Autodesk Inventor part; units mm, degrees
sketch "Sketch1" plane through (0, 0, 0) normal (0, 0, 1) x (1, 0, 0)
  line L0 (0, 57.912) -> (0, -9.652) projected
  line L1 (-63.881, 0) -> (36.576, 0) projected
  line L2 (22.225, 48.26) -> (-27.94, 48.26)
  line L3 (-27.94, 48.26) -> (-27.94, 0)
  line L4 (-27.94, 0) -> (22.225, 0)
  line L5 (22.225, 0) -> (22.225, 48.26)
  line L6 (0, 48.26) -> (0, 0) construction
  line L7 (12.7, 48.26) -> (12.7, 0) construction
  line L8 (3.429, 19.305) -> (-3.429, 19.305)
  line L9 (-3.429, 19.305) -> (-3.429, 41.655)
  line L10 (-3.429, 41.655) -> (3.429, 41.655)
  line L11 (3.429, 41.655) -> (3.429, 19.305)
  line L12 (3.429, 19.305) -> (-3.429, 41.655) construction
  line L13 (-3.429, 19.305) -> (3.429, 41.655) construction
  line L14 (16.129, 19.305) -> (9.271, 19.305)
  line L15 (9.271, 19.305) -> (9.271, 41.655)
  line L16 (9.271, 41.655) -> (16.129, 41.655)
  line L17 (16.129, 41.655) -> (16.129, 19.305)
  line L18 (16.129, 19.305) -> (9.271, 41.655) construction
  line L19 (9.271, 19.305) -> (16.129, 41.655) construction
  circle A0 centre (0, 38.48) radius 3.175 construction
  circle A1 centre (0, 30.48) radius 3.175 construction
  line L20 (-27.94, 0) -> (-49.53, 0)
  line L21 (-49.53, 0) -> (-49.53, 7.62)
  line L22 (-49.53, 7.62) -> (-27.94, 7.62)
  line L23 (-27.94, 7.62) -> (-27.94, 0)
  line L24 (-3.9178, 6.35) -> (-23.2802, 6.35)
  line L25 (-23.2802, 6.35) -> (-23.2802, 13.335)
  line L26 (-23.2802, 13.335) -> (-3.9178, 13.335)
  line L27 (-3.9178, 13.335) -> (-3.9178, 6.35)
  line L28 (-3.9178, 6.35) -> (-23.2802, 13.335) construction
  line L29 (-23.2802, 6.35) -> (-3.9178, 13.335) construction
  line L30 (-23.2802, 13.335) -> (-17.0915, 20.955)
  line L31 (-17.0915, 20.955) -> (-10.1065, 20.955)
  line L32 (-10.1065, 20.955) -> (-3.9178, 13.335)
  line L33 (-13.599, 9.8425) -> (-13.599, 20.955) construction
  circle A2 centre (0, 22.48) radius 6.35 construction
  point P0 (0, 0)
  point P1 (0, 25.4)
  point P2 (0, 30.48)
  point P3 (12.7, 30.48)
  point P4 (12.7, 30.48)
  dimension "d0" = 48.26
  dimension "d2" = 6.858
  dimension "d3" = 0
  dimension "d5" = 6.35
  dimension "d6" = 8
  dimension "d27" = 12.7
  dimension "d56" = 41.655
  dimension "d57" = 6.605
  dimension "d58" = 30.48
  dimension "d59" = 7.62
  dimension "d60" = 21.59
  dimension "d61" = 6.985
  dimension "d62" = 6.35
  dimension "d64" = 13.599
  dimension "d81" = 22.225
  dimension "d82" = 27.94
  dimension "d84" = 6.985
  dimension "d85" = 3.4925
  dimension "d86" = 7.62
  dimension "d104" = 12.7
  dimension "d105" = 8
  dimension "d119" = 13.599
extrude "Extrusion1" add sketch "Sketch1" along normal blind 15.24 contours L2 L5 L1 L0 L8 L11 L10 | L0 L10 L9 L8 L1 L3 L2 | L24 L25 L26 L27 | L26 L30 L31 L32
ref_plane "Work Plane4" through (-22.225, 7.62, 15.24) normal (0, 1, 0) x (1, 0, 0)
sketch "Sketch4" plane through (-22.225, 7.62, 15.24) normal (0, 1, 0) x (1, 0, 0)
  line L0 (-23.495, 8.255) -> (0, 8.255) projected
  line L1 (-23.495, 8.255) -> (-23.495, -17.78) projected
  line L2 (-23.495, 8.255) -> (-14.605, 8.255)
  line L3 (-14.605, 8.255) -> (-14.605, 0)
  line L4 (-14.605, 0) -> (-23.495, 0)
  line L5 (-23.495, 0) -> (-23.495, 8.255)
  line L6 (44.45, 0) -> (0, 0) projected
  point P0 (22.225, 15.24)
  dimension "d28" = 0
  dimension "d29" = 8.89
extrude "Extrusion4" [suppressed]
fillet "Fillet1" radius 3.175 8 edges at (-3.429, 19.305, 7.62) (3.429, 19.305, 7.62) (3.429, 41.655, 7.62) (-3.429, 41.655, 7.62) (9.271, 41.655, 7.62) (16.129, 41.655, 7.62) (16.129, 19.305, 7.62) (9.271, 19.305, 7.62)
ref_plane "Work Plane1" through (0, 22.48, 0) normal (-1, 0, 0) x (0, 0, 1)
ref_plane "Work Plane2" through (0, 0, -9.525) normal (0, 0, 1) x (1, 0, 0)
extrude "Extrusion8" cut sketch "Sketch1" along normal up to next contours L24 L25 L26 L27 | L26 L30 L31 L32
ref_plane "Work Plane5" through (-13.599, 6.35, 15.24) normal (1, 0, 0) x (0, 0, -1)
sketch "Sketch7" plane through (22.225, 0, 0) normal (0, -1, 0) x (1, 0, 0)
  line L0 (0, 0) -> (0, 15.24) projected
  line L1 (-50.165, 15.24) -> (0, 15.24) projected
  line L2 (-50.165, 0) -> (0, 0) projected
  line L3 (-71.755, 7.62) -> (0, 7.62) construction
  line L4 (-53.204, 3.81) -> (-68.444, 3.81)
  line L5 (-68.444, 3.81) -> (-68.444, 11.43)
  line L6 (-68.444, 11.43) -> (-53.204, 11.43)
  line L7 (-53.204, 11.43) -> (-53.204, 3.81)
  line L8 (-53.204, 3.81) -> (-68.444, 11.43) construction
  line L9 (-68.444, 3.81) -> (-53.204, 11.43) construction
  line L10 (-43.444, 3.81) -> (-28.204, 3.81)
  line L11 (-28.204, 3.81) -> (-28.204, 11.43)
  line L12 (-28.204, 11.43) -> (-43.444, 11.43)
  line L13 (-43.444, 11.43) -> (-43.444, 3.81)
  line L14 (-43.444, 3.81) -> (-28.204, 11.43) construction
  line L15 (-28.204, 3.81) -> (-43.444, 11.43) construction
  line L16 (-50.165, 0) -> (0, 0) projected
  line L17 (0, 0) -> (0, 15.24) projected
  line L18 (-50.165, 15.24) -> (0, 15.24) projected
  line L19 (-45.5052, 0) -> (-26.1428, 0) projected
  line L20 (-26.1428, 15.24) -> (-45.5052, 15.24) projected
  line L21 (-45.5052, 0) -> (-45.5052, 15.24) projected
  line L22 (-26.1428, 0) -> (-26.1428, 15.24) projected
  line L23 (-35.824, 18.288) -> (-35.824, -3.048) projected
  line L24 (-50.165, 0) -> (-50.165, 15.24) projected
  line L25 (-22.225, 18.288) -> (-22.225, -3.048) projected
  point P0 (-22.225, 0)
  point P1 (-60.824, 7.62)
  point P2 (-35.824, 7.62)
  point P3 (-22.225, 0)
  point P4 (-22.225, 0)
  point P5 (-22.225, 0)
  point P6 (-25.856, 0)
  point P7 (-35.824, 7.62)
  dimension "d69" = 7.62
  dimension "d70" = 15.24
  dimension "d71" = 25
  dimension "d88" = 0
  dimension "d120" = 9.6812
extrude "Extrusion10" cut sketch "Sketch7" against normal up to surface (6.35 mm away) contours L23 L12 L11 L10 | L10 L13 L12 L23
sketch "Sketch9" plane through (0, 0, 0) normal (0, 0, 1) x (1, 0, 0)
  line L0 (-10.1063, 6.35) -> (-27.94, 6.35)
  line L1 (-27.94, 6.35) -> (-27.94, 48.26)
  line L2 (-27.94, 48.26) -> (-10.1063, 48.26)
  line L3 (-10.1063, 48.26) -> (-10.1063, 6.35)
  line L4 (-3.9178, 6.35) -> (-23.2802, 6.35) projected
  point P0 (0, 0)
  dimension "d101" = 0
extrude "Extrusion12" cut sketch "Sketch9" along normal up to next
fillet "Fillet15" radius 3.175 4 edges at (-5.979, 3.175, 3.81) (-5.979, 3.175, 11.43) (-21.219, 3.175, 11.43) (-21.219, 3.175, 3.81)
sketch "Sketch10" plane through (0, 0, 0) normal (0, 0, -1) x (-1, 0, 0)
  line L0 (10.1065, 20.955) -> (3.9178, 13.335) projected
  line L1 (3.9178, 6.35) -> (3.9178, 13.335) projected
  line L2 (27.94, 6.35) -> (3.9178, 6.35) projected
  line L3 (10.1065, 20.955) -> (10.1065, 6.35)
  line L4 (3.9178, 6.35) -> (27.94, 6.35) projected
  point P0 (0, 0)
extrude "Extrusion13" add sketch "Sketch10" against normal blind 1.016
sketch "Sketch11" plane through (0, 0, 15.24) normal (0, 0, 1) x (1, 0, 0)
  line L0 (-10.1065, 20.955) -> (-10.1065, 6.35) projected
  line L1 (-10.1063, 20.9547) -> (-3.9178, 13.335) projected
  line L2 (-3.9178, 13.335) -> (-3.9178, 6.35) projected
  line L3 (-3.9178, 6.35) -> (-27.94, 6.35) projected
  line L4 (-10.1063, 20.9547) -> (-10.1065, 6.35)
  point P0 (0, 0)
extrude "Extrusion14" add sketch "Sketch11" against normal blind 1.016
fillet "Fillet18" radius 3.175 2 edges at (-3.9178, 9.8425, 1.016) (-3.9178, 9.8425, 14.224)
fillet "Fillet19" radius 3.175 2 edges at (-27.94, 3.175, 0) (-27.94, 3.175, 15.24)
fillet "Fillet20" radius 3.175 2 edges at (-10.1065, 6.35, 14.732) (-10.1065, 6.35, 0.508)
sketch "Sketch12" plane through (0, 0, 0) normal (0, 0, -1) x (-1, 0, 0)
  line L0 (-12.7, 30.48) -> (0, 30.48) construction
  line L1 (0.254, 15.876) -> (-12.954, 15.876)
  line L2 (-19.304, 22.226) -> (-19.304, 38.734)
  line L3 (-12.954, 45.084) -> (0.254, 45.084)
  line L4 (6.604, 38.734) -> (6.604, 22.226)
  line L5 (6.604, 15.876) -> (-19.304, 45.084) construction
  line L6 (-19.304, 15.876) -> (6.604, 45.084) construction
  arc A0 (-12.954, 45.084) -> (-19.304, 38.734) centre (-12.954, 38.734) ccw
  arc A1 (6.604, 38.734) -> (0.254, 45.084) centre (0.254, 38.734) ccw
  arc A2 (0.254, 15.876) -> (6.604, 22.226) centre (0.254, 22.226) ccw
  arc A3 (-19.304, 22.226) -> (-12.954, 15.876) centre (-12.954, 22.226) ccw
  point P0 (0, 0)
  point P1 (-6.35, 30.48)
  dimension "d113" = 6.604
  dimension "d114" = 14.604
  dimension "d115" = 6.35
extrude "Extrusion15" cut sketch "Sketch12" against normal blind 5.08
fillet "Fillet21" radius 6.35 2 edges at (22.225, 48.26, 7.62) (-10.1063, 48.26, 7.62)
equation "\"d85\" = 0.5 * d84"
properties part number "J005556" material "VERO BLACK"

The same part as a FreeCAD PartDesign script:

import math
import FreeCAD as App
import Part
import Sketcher
Q = App.Units.Quantity


def edges_at(feature, points):
    """Names of the edges that pass closest to the given points."""
    edges = feature.Shape.Edges
    near = lambda p: min(range(len(edges)), key=lambda i: edges[i].distToShape(Part.Vertex(*p))[0])
    return sorted({f"Edge{near(p) + 1}" for p in points})


def add_polygon(sketch, points):
    """Adds a closed chain of lines whose ends are joined by coincident constraints."""
    first, n = sketch.GeometryCount, len(points)
    for a, b in zip(points, points[1:] + points[:1]):
        sketch.addGeometry(Part.LineSegment(App.Vector(*a, 0), App.Vector(*b, 0)), False)
    for i in range(n):
        sketch.addConstraint(Sketcher.Constraint("Coincident", first + i, 2, first + (i + 1) % n, 1))

doc = App.newDocument("Part")
body = doc.addObject("PartDesign::Body", "Body")

# Sketch on XY plane
sketch1 = body.newObject("Sketcher::SketchObject", "Sketch")
sketch1.AttachmentSupport = (doc.getObject("XY_Plane"), [""])
sketch1.MapMode = "FlatFace"
add_polygon(sketch1, [(22, 48), (-28, 48), (-28, 0), (22, 0)])  # lines 0-3
add_polygon(sketch1, [(3, 19), (-3, 19), (-3, 42), (3, 42)])  # lines 4-7
add_polygon(sketch1, [(16, 42), (16, 19), (9, 19), (9, 42)])  # lines 8-11
sketch1.addConstraint([
    Sketcher.Constraint("Horizontal", 0),
    Sketcher.Constraint("Vertical", 1),
    Sketcher.Constraint("Horizontal", 2),
    Sketcher.Constraint("Vertical", 3),
    Sketcher.Constraint("Horizontal", 4),
    Sketcher.Constraint("Vertical", 5),
    Sketcher.Constraint("Horizontal", 6),
    Sketcher.Constraint("Vertical", 7),
    Sketcher.Constraint("Vertical", 8),
    Sketcher.Constraint("Horizontal", 9),
    Sketcher.Constraint("Vertical", 10),
    Sketcher.Constraint("Horizontal", 11),
    Sketcher.Constraint("PointOnObject", 1, 2, -1),
    Sketcher.Constraint("Horizontal", 7, 2, 8, 2),
    Sketcher.Constraint("Horizontal", 6, 2, 10, 2),
    Sketcher.Constraint("Equal", 6, 9),
    Sketcher.Constraint("DistanceY", 1, 2, 1, 1, Q("1.9 in")),
    Sketcher.Constraint("DistanceX", 4, 2, 4, 1, Q("0.27 in")),
    Sketcher.Constraint("DistanceX", 0, 2, -1, 1, Q("1.1 in")),
    Sketcher.Constraint("DistanceX", 7, 2, 8, 2, Q("0.5 in")),
    Sketcher.Constraint("DistanceX", -1, 1, 2, 2, Q("0.875 in")),
    Sketcher.Constraint("DistanceY", -1, 1, 5, 2, 41.655),
    Sketcher.Constraint("DistanceX", 4, 2, 2, 2, Q("1.01 in")),
    Sketcher.Constraint("DistanceY", 5, 1, 5, 2, 22.35),
])
pad1 = body.newObject("PartDesign::Pad", "Pad")
pad1.Profile = sketch1
pad1.Length = Q("0.6 in")
doc.recompute()

fillet = body.newObject("PartDesign::Fillet", "Fillet")
fillet.Base = (pad1, edges_at(pad1, [
    (-3.429, 19.305, 7.62),
    (3.429, 19.305, 7.62),
    (3.429, 41.655, 7.62),
    (-3.429, 41.655, 7.62),
    (9.271, 41.655, 7.62),
    (16.129, 41.655, 7.62),
    (16.129, 19.305, 7.62),
    (9.271, 19.305, 7.62),
]))
fillet.Radius = Q("0.125 in")

# Sketch on XY plane
sketch2 = body.newObject("Sketcher::SketchObject", "Sketch001")
sketch2.AttachmentSupport = (doc.getObject("XY_Plane"), [""])
sketch2.MapMode = "FlatFace"
add_polygon(sketch2, [(-23, 6), (-4, 6), (-4, 13), (-10, 21), (-17, 21), (-23, 13)])  # lines 0-5
sketch2.addConstraint([
    Sketcher.Constraint("Horizontal", 0),
    Sketcher.Constraint("Vertical", 1),
    Sketcher.Constraint("Horizontal", 3),
    Sketcher.Constraint("Vertical", 5),
    Sketcher.Constraint("Horizontal", 1, 2, 4, 2),
    Sketcher.Constraint("Equal", 3, 1),
    Sketcher.Constraint("Equal", 2, 4),
    Sketcher.Constraint("DistanceY", 1, 2, 2, 2, Q("0.3 in")),
    Sketcher.Constraint("DistanceX", 3, 2, 3, 1, Q("0.275 in")),
    Sketcher.Constraint("DistanceY", -1, 1, 0, 2, Q("0.25 in")),
    Sketcher.Constraint("DistanceX", 0, 1, 0, 2, Q("0.7623 in")),
    Sketcher.Constraint("DistanceX", 2, 2, -1, 1, Q("0.3979 in")),
])
pocket1 = body.newObject("PartDesign::Pocket", "Pocket")
pocket1.Profile = sketch2
pocket1.Type = "UpToFirst"
pocket1.Reversed = True

# Sketch on XZ plane
sketch3 = body.newObject("Sketcher::SketchObject", "Sketch002")
sketch3.AttachmentSupport = (doc.getObject("XZ_Plane"), [""])
sketch3.MapMode = "FlatFace"
add_polygon(sketch3, [(-6, 11), (-21, 11), (-21, 4), (-6, 4)])  # lines 0-3
sketch3.addConstraint([
    Sketcher.Constraint("Horizontal", 0),
    Sketcher.Constraint("Vertical", 1),
    Sketcher.Constraint("Horizontal", 2),
    Sketcher.Constraint("Vertical", 3),
    Sketcher.Constraint("DistanceX", 0, 2, 0, 1, Q("0.6 in")),
    Sketcher.Constraint("DistanceY", 1, 2, 1, 1, Q("0.3 in")),
    Sketcher.Constraint("DistanceY", -1, 1, 0, 2, Q("0.45 in")),
    Sketcher.Constraint("DistanceX", 0, 2, -1, 1, Q("0.8354 in")),
])
pocket2 = body.newObject("PartDesign::Pocket", "Pocket001")
pocket2.Profile = sketch3
pocket2.Length = Q("0.25 in")

# Sketch on XY plane
sketch4 = body.newObject("Sketcher::SketchObject", "Sketch003")
sketch4.AttachmentSupport = (doc.getObject("XY_Plane"), [""])
sketch4.MapMode = "FlatFace"
add_polygon(sketch4, [(-28, 6), (-10, 6), (-10, 48), (-28, 48)])  # lines 0-3
sketch4.addConstraint([
    Sketcher.Constraint("Horizontal", 0),
    Sketcher.Constraint("Vertical", 1),
    Sketcher.Constraint("Horizontal", 2),
    Sketcher.Constraint("Vertical", 3),
    Sketcher.Constraint("DistanceY", 1, 1, 1, 2, Q("1.65 in")),
    Sketcher.Constraint("DistanceY", -1, 1, 1, 2, Q("1.9 in")),
    Sketcher.Constraint("DistanceX", 2, 2, -1, 1, Q("1.1 in")),
    Sketcher.Constraint("DistanceX", 0, 1, 0, 2, 17.8337),
])
pocket3 = body.newObject("PartDesign::Pocket", "Pocket002")
pocket3.Profile = sketch4
pocket3.Type = "UpToFirst"
pocket3.Reversed = True
doc.recompute()

fillet2 = body.newObject("PartDesign::Fillet", "Fillet001")
fillet2.Base = (pocket3, edges_at(pocket3, [
    (-5.979, 3.175, 3.81),
    (-5.979, 3.175, 11.43),
    (-21.219, 3.175, 11.43),
    (-21.219, 3.175, 3.81),
]))
fillet2.Radius = Q("0.125 in")

# Sketch on XY plane
sketch5 = body.newObject("Sketcher::SketchObject", "Sketch004")
sketch5.AttachmentSupport = (doc.getObject("XY_Plane"), [""])
sketch5.MapMode = "FlatFace"
add_polygon(sketch5, [(-10, 6), (-10, 21), (-4, 13), (-4, 6)])  # lines 0-3
sketch5.addConstraint([
    Sketcher.Constraint("Vertical", 0),
    Sketcher.Constraint("Vertical", 2),
    Sketcher.Constraint("Horizontal", 3),
    Sketcher.Constraint("DistanceY", 1, 2, 0, 2, Q("0.3 in")),
    Sketcher.Constraint("DistanceY", 0, 1, 0, 2, Q("0.575 in")),
    Sketcher.Constraint("DistanceY", -1, 1, 2, 2, Q("0.25 in")),
    Sketcher.Constraint("DistanceX", 3, 2, 3, 1, 6.1887),
    Sketcher.Constraint("DistanceX", 0, 2, -1, 1, Q("0.3979 in")),
])
pad2 = body.newObject("PartDesign::Pad", "Pad001")
pad2.Profile = sketch5
pad2.Length = Q("0.04 in")

# Sketch on XY plane
sketch6 = body.newObject("Sketcher::SketchObject", "Sketch005")
sketch6.AttachmentSupport = (doc.getObject("XY_Plane"), [""])
sketch6.MapMode = "FlatFace"
sketch6.AttachmentOffset = App.Placement(App.Vector(0, 0, 0.6 * 25.4), App.Rotation())
add_polygon(sketch6, [(-4, 13), (-10, 21), (-10, 6), (-4, 6)])  # lines 0-3
sketch6.addConstraint([
    Sketcher.Constraint("Vertical", 1),
    Sketcher.Constraint("Horizontal", 2),
    Sketcher.Constraint("Vertical", 3),
    Sketcher.Constraint("DistanceY", 3, 2, 0, 2, Q("0.3 in")),
    Sketcher.Constraint("DistanceY", 1, 2, 1, 1, Q("0.575 in")),
    Sketcher.Constraint("DistanceY", -1, 1, 1, 2, Q("0.25 in")),
    Sketcher.Constraint("DistanceX", 2, 1, 2, 2, 6.1887),
    Sketcher.Constraint("DistanceX", 0, 2, -1, 1, Q("0.3979 in")),
])
pad3 = body.newObject("PartDesign::Pad", "Pad002")
pad3.Profile = sketch6
pad3.Length = Q("0.04 in")
pad3.Reversed = True
doc.recompute()

fillet3 = body.newObject("PartDesign::Fillet", "Fillet002")
fillet3.Base = (pad3, edges_at(pad3, [(-3.918, 9.842, 1.016), (-3.918, 9.842, 14.224)]))
fillet3.Radius = Q("0.125 in")
doc.recompute()

fillet4 = body.newObject("PartDesign::Fillet", "Fillet003")
fillet4.Base = (fillet3, edges_at(fillet3, [(-27.94, 3.175, 0), (-27.94, 3.175, 15.24)]))
fillet4.Radius = Q("0.125 in")
doc.recompute()

fillet5 = body.newObject("PartDesign::Fillet", "Fillet004")
fillet5.Base = (fillet4, edges_at(fillet4, [(-10.107, 6.35, 14.732), (-10.107, 6.35, 0.508)]))
fillet5.Radius = Q("0.125 in")

# Sketch on XY plane
sketch7 = body.newObject("Sketcher::SketchObject", "Sketch006")
sketch7.AttachmentSupport = (doc.getObject("XY_Plane"), [""])
sketch7.MapMode = "FlatFace"
sketch7.addGeometry([
    Part.LineSegment(App.Vector(13, 16, 0), App.Vector(0, 16, 0)),  # 0
    Part.ArcOfCircle(Part.Circle(App.Vector(0, 22, 0), App.Vector(0, 0, 1), 6), math.radians(180), math.radians(270)),  # 1
    Part.LineSegment(App.Vector(-7, 22, 0), App.Vector(-7, 39, 0)),  # 2
    Part.ArcOfCircle(Part.Circle(App.Vector(0, 39, 0), App.Vector(0, 0, 1), 6), math.radians(90), math.radians(180)),  # 3
    Part.LineSegment(App.Vector(0, 45, 0), App.Vector(13, 45, 0)),  # 4
    Part.ArcOfCircle(Part.Circle(App.Vector(13, 39, 0), App.Vector(0, 0, 1), 6), math.radians(0), math.radians(90)),  # 5
    Part.LineSegment(App.Vector(19, 39, 0), App.Vector(19, 22, 0)),  # 6
    Part.ArcOfCircle(Part.Circle(App.Vector(13, 22, 0), App.Vector(0, 0, 1), 6), math.radians(-90), math.radians(0)),  # 7
], False)
sketch7.addConstraint([
    Sketcher.Constraint("Tangent", 0, 2, 1, 2),
    Sketcher.Constraint("Tangent", 1, 1, 2, 1),
    Sketcher.Constraint("Tangent", 2, 2, 3, 2),
    Sketcher.Constraint("Tangent", 3, 1, 4, 1),
    Sketcher.Constraint("Tangent", 4, 2, 5, 2),
    Sketcher.Constraint("Tangent", 5, 1, 6, 1),
    Sketcher.Constraint("Tangent", 6, 2, 7, 2),
    Sketcher.Constraint("Tangent", 7, 1, 0, 1),
    Sketcher.Constraint("Horizontal", 0),
    Sketcher.Constraint("Vertical", 2),
    Sketcher.Constraint("Horizontal", 4),
    Sketcher.Constraint("Vertical", 6),
    Sketcher.Constraint("Equal", 1, 3),
    Sketcher.Constraint("Equal", 3, 5),
    Sketcher.Constraint("Equal", 5, 7),
    Sketcher.Constraint("Radius", 1, Q("0.25 in")),
    Sketcher.Constraint("DistanceX", 1, 1, -1, 1, Q("0.26 in")),
    Sketcher.Constraint("DistanceX", 0, 2, 0, 1, Q("0.52 in")),
    Sketcher.Constraint("DistanceY", 2, 1, 2, 2, 16.508),
    Sketcher.Constraint("DistanceY", -1, 1, 1, 3, 22.226),
])
pocket4 = body.newObject("PartDesign::Pocket", "Pocket003")
pocket4.Profile = sketch7
pocket4.Length = Q("0.2 in")
pocket4.Reversed = True
doc.recompute()

fillet6 = body.newObject("PartDesign::Fillet", "Fillet005")
fillet6.Base = (pocket4, edges_at(pocket4, [(22.225, 48.26, 7.62), (-10.106, 48.26, 7.62)]))
fillet6.Radius = Q("0.25 in")

doc.recompute()
